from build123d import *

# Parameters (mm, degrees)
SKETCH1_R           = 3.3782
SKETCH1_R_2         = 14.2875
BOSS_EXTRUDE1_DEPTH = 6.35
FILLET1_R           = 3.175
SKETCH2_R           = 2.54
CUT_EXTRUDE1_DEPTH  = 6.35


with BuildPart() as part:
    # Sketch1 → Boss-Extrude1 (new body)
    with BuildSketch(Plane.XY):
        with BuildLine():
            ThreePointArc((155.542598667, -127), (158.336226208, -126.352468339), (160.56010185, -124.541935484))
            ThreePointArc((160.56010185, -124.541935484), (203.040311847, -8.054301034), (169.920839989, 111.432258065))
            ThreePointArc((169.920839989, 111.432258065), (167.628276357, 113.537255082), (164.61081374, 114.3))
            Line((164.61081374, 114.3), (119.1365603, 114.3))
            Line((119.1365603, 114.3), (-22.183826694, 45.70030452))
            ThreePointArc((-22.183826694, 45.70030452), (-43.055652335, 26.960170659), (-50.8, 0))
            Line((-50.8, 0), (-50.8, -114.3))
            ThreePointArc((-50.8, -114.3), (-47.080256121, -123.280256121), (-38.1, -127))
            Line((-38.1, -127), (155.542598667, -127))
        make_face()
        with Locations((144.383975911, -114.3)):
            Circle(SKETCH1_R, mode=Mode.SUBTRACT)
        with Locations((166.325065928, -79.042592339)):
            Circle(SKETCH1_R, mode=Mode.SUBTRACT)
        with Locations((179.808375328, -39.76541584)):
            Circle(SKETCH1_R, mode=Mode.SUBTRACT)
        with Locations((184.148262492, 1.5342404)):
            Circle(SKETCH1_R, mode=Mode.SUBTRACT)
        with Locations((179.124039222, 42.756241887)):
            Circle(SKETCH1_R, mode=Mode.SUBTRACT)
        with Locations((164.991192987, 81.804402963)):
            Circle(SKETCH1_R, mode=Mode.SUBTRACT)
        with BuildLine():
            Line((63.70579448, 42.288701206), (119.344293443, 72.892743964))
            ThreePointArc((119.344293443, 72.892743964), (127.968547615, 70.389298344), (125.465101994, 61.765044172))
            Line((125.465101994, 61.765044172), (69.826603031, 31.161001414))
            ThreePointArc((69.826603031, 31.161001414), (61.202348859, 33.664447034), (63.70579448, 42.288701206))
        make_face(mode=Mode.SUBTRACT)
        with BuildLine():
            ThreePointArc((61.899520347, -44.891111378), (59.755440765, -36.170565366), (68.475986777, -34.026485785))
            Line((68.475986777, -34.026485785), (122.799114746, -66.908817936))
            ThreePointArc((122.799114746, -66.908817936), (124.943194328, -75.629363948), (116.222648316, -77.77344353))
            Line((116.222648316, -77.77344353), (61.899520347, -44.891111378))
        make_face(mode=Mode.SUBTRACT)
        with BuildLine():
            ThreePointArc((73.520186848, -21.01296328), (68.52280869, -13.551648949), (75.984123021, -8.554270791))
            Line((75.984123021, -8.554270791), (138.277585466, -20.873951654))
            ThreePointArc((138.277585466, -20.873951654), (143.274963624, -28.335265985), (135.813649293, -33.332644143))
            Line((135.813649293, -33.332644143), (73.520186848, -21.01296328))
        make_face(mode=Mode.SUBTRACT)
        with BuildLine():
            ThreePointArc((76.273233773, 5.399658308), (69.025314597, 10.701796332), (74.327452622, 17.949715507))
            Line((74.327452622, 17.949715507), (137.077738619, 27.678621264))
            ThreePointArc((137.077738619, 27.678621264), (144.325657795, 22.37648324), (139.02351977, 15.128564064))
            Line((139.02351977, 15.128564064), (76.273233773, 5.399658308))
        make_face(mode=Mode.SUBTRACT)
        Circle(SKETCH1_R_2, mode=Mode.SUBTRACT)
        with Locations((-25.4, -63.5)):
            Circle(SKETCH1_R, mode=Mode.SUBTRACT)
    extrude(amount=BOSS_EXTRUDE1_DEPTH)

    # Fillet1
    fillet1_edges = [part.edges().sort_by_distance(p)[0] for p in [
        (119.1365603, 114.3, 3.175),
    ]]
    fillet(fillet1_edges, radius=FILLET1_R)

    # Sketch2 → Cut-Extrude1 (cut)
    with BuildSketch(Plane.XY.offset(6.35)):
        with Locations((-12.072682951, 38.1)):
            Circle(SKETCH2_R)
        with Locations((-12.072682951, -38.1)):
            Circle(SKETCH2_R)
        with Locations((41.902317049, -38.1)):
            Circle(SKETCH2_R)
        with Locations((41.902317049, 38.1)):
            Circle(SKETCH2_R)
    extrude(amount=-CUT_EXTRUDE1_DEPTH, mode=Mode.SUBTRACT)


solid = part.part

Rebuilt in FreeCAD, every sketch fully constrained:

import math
import FreeCAD as App
import Part
import Sketcher
Q = App.Units.Quantity


def edges_at(feature, points):
    """Names of the edges that pass closest to the given points."""
    edges = feature.Shape.Edges
    near = lambda p: min(range(len(edges)), key=lambda i: edges[i].distToShape(Part.Vertex(*p))[0])
    return sorted({f"Edge{near(p) + 1}" for p in points})

doc = App.newDocument("Part")
body = doc.addObject("PartDesign::Body", "Body")

sketch1 = doc.addObject("Sketcher::SketchObject", "Sketch")
body.addObject(sketch1)
sketch1.AttachmentSupport = (doc.XY_Plane, [""])
sketch1.MapMode = "FlatFace"
sketch1.addGeometry(Part.ArcOfCircle(Part.Circle(App.Vector(155.542599, -120.65, 0), App.Vector(0, 0, 1), 6.35), math.radians(-90), math.radians(-37.799722)), False)
sketch1.addGeometry(Part.ArcOfCircle(Part.Circle(App.Vector(0, 0, 0), App.Vector(0, 0, 1), 203.2), math.radians(-37.799722), math.radians(33.256431)), False)
sketch1.addGeometry(Part.ArcOfCircle(Part.Circle(App.Vector(164.610814, 107.95, 0), App.Vector(0, 0, 1), 6.35), math.radians(33.256431), math.radians(90)), False)
sketch1.addGeometry(Part.LineSegment(App.Vector(164.610814, 114.3, 0), App.Vector(119.13656, 114.3, 0)), False)
sketch1.addGeometry(Part.LineSegment(App.Vector(119.13656, 114.3, 0), App.Vector(-22.183827, 45.700305, 0)), False)
sketch1.addGeometry(Part.ArcOfCircle(Part.Circle(App.Vector(0, 0, 0), App.Vector(0, 0, 1), 50.8), math.radians(115.892848), math.radians(180)), False)
sketch1.addGeometry(Part.LineSegment(App.Vector(-50.8, 0, 0), App.Vector(-50.8, -114.3, 0)), False)
sketch1.addGeometry(Part.ArcOfCircle(Part.Circle(App.Vector(-38.1, -114.3, 0), App.Vector(0, 0, 1), 12.7), math.radians(180), math.radians(270)), False)
sketch1.addGeometry(Part.LineSegment(App.Vector(-38.1, -127, 0), App.Vector(155.542599, -127, 0)), False)
sketch1.addGeometry(Part.Circle(App.Vector(-25.4, -63.5, 0), App.Vector(0, 0, 1), 3.3782), False)
sketch1.addGeometry(Part.Circle(App.Vector(144.383976, -114.3, 0), App.Vector(0, 0, 1), 3.3782), False)
sketch1.addGeometry(Part.Circle(App.Vector(166.325066, -79.042592, 0), App.Vector(0, 0, 1), 3.3782), False)
sketch1.addGeometry(Part.LineSegment(App.Vector(116.222648, -77.773444, 0), App.Vector(61.89952, -44.891111, 0)), False)
sketch1.addGeometry(Part.ArcOfCircle(Part.Circle(App.Vector(65.187754, -39.458799, 0), App.Vector(0, 0, 1), 6.35), math.radians(58.813061), math.radians(238.813061)), False)
sketch1.addGeometry(Part.LineSegment(App.Vector(68.475987, -34.026486, 0), App.Vector(122.799115, -66.908818, 0)), False)
sketch1.addGeometry(Part.ArcOfCircle(Part.Circle(App.Vector(119.510882, -72.341131, 0), App.Vector(0, 0, 1), 6.35), math.radians(-121.186939), math.radians(58.813061)), False)
sketch1.addGeometry(Part.LineSegment(App.Vector(135.813649, -33.332644, 0), App.Vector(73.520187, -21.012963, 0)), False)
sketch1.addGeometry(Part.ArcOfCircle(Part.Circle(App.Vector(74.752155, -14.783617, 0), App.Vector(0, 0, 1), 6.35), math.radians(78.813061), math.radians(258.813061)), False)
sketch1.addGeometry(Part.LineSegment(App.Vector(75.984123, -8.554271, 0), App.Vector(138.277585, -20.873952, 0)), False)
sketch1.addGeometry(Part.ArcOfCircle(Part.Circle(App.Vector(137.045617, -27.103298, 0), App.Vector(0, 0, 1), 6.35), math.radians(-101.186939), math.radians(78.813061)), False)
sketch1.addGeometry(Part.Circle(App.Vector(179.808375, -39.765416, 0), App.Vector(0, 0, 1), 3.3782), False)
sketch1.addGeometry(Part.Circle(App.Vector(0, 0, 0), App.Vector(0, 0, 1), 14.2875), False)
sketch1.addGeometry(Part.LineSegment(App.Vector(139.02352, 15.128564, 0), App.Vector(76.273234, 5.399658, 0)), False)
sketch1.addGeometry(Part.ArcOfCircle(Part.Circle(App.Vector(75.300343, 11.674687, 0), App.Vector(0, 0, 1), 6.35), math.radians(98.813061), math.radians(278.813061)), False)
sketch1.addGeometry(Part.LineSegment(App.Vector(74.327453, 17.949716, 0), App.Vector(137.077739, 27.678621, 0)), False)
sketch1.addGeometry(Part.ArcOfCircle(Part.Circle(App.Vector(138.050629, 21.403593, 0), App.Vector(0, 0, 1), 6.35), math.radians(-81.186939), math.radians(98.813061)), False)
sketch1.addGeometry(Part.Circle(App.Vector(184.148262, 1.53424, 0), App.Vector(0, 0, 1), 3.3782), False)
sketch1.addGeometry(Part.ArcOfCircle(Part.Circle(App.Vector(66.766199, 36.724851, 0), App.Vector(0, 0, 1), 6.35), math.radians(118.813061), math.radians(298.813061)), False)
sketch1.addGeometry(Part.LineSegment(App.Vector(63.705794, 42.288701, 0), App.Vector(119.344293, 72.892744, 0)), False)
sketch1.addGeometry(Part.ArcOfCircle(Part.Circle(App.Vector(122.404698, 67.328894, 0), App.Vector(0, 0, 1), 6.35), math.radians(-61.186939), math.radians(118.813061)), False)
sketch1.addGeometry(Part.LineSegment(App.Vector(125.465102, 61.765044, 0), App.Vector(69.826603, 31.161001, 0)), False)
sketch1.addGeometry(Part.Circle(App.Vector(179.124039, 42.756242, 0), App.Vector(0, 0, 1), 3.3782), False)
sketch1.addGeometry(Part.Circle(App.Vector(164.991193, 81.804403, 0), App.Vector(0, 0, 1), 3.3782), False)
sketch1.addConstraint(Sketcher.Constraint("Tangent", 0, 2, 1, 1))
sketch1.addConstraint(Sketcher.Constraint("Tangent", 1, 2, 2, 1))
sketch1.addConstraint(Sketcher.Constraint("Tangent", 2, 2, 3, 1))
sketch1.addConstraint(Sketcher.Constraint("Coincident", 3, 2, 4, 1))
sketch1.addConstraint(Sketcher.Constraint("Tangent", 4, 2, 5, 1))
sketch1.addConstraint(Sketcher.Constraint("Tangent", 5, 2, 6, 1))
sketch1.addConstraint(Sketcher.Constraint("Tangent", 6, 2, 7, 1))
sketch1.addConstraint(Sketcher.Constraint("Tangent", 7, 2, 8, 1))
sketch1.addConstraint(Sketcher.Constraint("Tangent", 8, 2, 0, 1))
sketch1.addConstraint(Sketcher.Constraint("Tangent", 12, 2, 13, 2))
sketch1.addConstraint(Sketcher.Constraint("Tangent", 13, 1, 14, 1))
sketch1.addConstraint(Sketcher.Constraint("Tangent", 14, 2, 15, 2))
sketch1.addConstraint(Sketcher.Constraint("Tangent", 15, 1, 12, 1))
sketch1.addConstraint(Sketcher.Constraint("Tangent", 16, 2, 17, 2))
sketch1.addConstraint(Sketcher.Constraint("Tangent", 17, 1, 18, 1))
sketch1.addConstraint(Sketcher.Constraint("Tangent", 18, 2, 19, 2))
sketch1.addConstraint(Sketcher.Constraint("Tangent", 19, 1, 16, 1))
sketch1.addConstraint(Sketcher.Constraint("Tangent", 22, 2, 23, 2))
sketch1.addConstraint(Sketcher.Constraint("Tangent", 23, 1, 24, 1))
sketch1.addConstraint(Sketcher.Constraint("Tangent", 24, 2, 25, 2))
sketch1.addConstraint(Sketcher.Constraint("Tangent", 25, 1, 22, 1))
sketch1.addConstraint(Sketcher.Constraint("Tangent", 27, 1, 28, 1))
sketch1.addConstraint(Sketcher.Constraint("Tangent", 28, 2, 29, 2))
sketch1.addConstraint(Sketcher.Constraint("Tangent", 29, 1, 30, 1))
sketch1.addConstraint(Sketcher.Constraint("Tangent", 30, 2, 27, 2))
sketch1.addConstraint(Sketcher.Constraint("Horizontal", 3))
sketch1.addConstraint(Sketcher.Constraint("Vertical", 6))
sketch1.addConstraint(Sketcher.Constraint("Horizontal", 8))
sketch1.addConstraint(Sketcher.Constraint("Coincident", 1, 3, -1, 1))
sketch1.addConstraint(Sketcher.Constraint("Coincident", 5, 3, -1, 1))
sketch1.addConstraint(Sketcher.Constraint("Coincident", 21, 3, -1, 1))
sketch1.addConstraint(Sketcher.Constraint("Equal", 0, 2))
sketch1.addConstraint(Sketcher.Constraint("Equal", 9, 10))
sketch1.addConstraint(Sketcher.Constraint("Equal", 10, 11))
sketch1.addConstraint(Sketcher.Constraint("Equal", 2, 13))
sketch1.addConstraint(Sketcher.Constraint("Equal", 13, 15))
sketch1.addConstraint(Sketcher.Constraint("Equal", 15, 17))
sketch1.addConstraint(Sketcher.Constraint("Equal", 17, 19))
sketch1.addConstraint(Sketcher.Constraint("Equal", 11, 20))
sketch1.addConstraint(Sketcher.Constraint("Equal", 19, 23))
sketch1.addConstraint(Sketcher.Constraint("Equal", 23, 25))
sketch1.addConstraint(Sketcher.Constraint("Equal", 20, 26))
sketch1.addConstraint(Sketcher.Constraint("Equal", 25, 27))
sketch1.addConstraint(Sketcher.Constraint("Equal", 27, 29))
sketch1.addConstraint(Sketcher.Constraint("Equal", 26, 31))
sketch1.addConstraint(Sketcher.Constraint("Equal", 31, 32))
sketch1.addConstraint(Sketcher.Constraint("Horizontal", 7, 3, 10, 3))
sketch1.addConstraint(Sketcher.Constraint("Equal", 14, 16))
sketch1.addConstraint(Sketcher.Constraint("Equal", 18, 22))
sketch1.addConstraint(Sketcher.Constraint("Equal", 24, 28))
sketch1.addConstraint(Sketcher.Constraint("Radius", 1, Q("8 in")))
sketch1.addConstraint(Sketcher.Constraint("Radius", 5, Q("2 in")))
sketch1.addConstraint(Sketcher.Constraint("Radius", 7, Q("0.5 in")))
sketch1.addConstraint(Sketcher.Constraint("Radius", 0, Q("0.25 in")))
sketch1.addConstraint(Sketcher.Constraint("Diameter", 9, Q("0.266 in")))
sketch1.addConstraint(Sketcher.Constraint("Diameter", 21, Q("1.125 in")))
sketch1.addConstraint(Sketcher.Constraint("DistanceY", 6, 2, 6, 1, Q("4.5 in")))
sketch1.addConstraint(Sketcher.Constraint("DistanceX", 9, 3, -1, 1, Q("1 in")))
sketch1.addConstraint(Sketcher.Constraint("DistanceY", 0, 3, 2, 3, Q("9 in")))
sketch1.addConstraint(Sketcher.Constraint("DistanceY", 7, 3, 9, 3, Q("2 in")))
sketch1.addConstraint(Sketcher.Constraint("Distance", 12, Q("2.5 in")))
sketch1.addConstraint(Sketcher.Constraint("DistanceY", 12, 2, 23, 3, Q("2.2269999 in")))
sketch1.addConstraint(Sketcher.Constraint("DistanceY", 13, 3, -1, 1, 39.458799))
sketch1.addConstraint(Sketcher.Constraint("DistanceX", -1, 1, 27, 3, 66.766199))
sketch1.addConstraint(Sketcher.Constraint("DistanceY", -1, 1, 27, 1, 42.288701))
sketch1.addConstraint(Sketcher.Constraint("DistanceX", -1, 1, 29, 1, 125.465102))
sketch1.addConstraint(Sketcher.Constraint("DistanceX", 13, 3, 17, 3, 9.564401))
sketch1.addConstraint(Sketcher.Constraint("DistanceY", 13, 3, 19, 3, 12.355501))
sketch1.addConstraint(Sketcher.Constraint("DistanceX", 10, 3, 20, 3, 35.424399))
sketch1.addConstraint(Sketcher.Constraint("DistanceY", 25, 3, 29, 3, 45.925301))
sketch1.addConstraint(Sketcher.Constraint("DistanceY", 26, 3, 31, 3, 41.222001))
sketch1.addConstraint(Sketcher.Constraint("DistanceX", 1, 2, 31, 3, 9.203199))
sketch1.addConstraint(Sketcher.Constraint("DistanceX", 13, 1, 16, 2, 5.0442))
sketch1.addConstraint(Sketcher.Constraint("DistanceX", 24, 2, 31, 3, 42.046301))
sketch1.addConstraint(Sketcher.Constraint("DistanceX", 28, 2, 32, 3, 45.6469))
sketch1.addConstraint(Sketcher.Constraint("DistanceX", 3, 2, 3, 1, 45.474253))
sketch1.addConstraint(Sketcher.Constraint("DistanceX", -1, 1, 15, 3, 119.510882))
sketch1.addConstraint(Sketcher.Constraint("DistanceY", 15, 3, -1, 1, 72.341131))
sketch1.addConstraint(Sketcher.Constraint("DistanceY", -1, 1, 26, 3, 1.53424))
sketch1.addConstraint(Sketcher.Constraint("DistanceX", 10, 3, 11, 3, 21.94109))
sketch1.addConstraint(Sketcher.Constraint("DistanceY", 11, 3, 15, 3, 6.701462))
sketch1.addConstraint(Sketcher.Constraint("DistanceX", 19, 3, 11, 3, 29.279449))
sketch1.addConstraint(Sketcher.Constraint("DistanceY", 20, 3, 25, 3, 61.169009))
sketch1.addConstraint(Sketcher.Constraint("DistanceX", 15, 3, 26, 3, 64.637381))
sketch1.addConstraint(Sketcher.Constraint("DistanceY", 31, 3, 32, 3, 39.048161))
pad1 = doc.addObject("PartDesign::Pad", "Pad")
body.addObject(pad1)
pad1.Profile = sketch1
pad1.Length = Q("0.25 in")
doc.recompute()

fillet = doc.addObject("PartDesign::Fillet", "Fillet")
body.addObject(fillet)
fillet.Base = (pad1, edges_at(pad1, [(119.137, 114.3, 3.175)]))
fillet.Radius = Q("0.125 in")

sketch2 = doc.addObject("Sketcher::SketchObject", "Sketch001")
body.addObject(sketch2)
sketch2.AttachmentSupport = (doc.XY_Plane, [""])
sketch2.MapMode = "FlatFace"
sketch2.AttachmentOffset = App.Placement(App.Vector(0, 0, 0.25 * 25.4), App.Rotation())
sketch2.addGeometry(Part.Circle(App.Vector(-12.072683, 38.1, 0), App.Vector(0, 0, 1), 2.54), False)
sketch2.addGeometry(Part.Circle(App.Vector(-12.072683, -38.1, 0), App.Vector(0, 0, 1), 2.54), False)
sketch2.addGeometry(Part.Circle(App.Vector(41.902317, -38.1, 0), App.Vector(0, 0, 1), 2.54), False)
sketch2.addGeometry(Part.Circle(App.Vector(41.902317, 38.1, 0), App.Vector(0, 0, 1), 2.54), False)
sketch2.addConstraint(Sketcher.Constraint("Equal", 0, 1))
sketch2.addConstraint(Sketcher.Constraint("Equal", 1, 2))
sketch2.addConstraint(Sketcher.Constraint("Equal", 2, 3))
sketch2.addConstraint(Sketcher.Constraint("Symmetric", 0, 3, 1, 3, -1))
sketch2.addConstraint(Sketcher.Constraint("Symmetric", 2, 3, 3, 3, -1))
sketch2.addConstraint(Sketcher.Constraint("Horizontal", 1, 3, 2, 3))
sketch2.addConstraint(Sketcher.Constraint("Diameter", 0, Q("0.2 in")))
sketch2.addConstraint(Sketcher.Constraint("DistanceY", 1, 3, 0, 3, Q("3 in")))
sketch2.addConstraint(Sketcher.Constraint("DistanceX", 1, 3, 2, 3, Q("2.125 in")))
sketch2.addConstraint(Sketcher.Constraint("DistanceX", 0, 3, -1, 1, 12.072683))
pocket1 = doc.addObject("PartDesign::Pocket", "Pocket")
body.addObject(pocket1)
pocket1.Profile = sketch2
pocket1.Length = Q("0.25 in")

doc.recompute()
